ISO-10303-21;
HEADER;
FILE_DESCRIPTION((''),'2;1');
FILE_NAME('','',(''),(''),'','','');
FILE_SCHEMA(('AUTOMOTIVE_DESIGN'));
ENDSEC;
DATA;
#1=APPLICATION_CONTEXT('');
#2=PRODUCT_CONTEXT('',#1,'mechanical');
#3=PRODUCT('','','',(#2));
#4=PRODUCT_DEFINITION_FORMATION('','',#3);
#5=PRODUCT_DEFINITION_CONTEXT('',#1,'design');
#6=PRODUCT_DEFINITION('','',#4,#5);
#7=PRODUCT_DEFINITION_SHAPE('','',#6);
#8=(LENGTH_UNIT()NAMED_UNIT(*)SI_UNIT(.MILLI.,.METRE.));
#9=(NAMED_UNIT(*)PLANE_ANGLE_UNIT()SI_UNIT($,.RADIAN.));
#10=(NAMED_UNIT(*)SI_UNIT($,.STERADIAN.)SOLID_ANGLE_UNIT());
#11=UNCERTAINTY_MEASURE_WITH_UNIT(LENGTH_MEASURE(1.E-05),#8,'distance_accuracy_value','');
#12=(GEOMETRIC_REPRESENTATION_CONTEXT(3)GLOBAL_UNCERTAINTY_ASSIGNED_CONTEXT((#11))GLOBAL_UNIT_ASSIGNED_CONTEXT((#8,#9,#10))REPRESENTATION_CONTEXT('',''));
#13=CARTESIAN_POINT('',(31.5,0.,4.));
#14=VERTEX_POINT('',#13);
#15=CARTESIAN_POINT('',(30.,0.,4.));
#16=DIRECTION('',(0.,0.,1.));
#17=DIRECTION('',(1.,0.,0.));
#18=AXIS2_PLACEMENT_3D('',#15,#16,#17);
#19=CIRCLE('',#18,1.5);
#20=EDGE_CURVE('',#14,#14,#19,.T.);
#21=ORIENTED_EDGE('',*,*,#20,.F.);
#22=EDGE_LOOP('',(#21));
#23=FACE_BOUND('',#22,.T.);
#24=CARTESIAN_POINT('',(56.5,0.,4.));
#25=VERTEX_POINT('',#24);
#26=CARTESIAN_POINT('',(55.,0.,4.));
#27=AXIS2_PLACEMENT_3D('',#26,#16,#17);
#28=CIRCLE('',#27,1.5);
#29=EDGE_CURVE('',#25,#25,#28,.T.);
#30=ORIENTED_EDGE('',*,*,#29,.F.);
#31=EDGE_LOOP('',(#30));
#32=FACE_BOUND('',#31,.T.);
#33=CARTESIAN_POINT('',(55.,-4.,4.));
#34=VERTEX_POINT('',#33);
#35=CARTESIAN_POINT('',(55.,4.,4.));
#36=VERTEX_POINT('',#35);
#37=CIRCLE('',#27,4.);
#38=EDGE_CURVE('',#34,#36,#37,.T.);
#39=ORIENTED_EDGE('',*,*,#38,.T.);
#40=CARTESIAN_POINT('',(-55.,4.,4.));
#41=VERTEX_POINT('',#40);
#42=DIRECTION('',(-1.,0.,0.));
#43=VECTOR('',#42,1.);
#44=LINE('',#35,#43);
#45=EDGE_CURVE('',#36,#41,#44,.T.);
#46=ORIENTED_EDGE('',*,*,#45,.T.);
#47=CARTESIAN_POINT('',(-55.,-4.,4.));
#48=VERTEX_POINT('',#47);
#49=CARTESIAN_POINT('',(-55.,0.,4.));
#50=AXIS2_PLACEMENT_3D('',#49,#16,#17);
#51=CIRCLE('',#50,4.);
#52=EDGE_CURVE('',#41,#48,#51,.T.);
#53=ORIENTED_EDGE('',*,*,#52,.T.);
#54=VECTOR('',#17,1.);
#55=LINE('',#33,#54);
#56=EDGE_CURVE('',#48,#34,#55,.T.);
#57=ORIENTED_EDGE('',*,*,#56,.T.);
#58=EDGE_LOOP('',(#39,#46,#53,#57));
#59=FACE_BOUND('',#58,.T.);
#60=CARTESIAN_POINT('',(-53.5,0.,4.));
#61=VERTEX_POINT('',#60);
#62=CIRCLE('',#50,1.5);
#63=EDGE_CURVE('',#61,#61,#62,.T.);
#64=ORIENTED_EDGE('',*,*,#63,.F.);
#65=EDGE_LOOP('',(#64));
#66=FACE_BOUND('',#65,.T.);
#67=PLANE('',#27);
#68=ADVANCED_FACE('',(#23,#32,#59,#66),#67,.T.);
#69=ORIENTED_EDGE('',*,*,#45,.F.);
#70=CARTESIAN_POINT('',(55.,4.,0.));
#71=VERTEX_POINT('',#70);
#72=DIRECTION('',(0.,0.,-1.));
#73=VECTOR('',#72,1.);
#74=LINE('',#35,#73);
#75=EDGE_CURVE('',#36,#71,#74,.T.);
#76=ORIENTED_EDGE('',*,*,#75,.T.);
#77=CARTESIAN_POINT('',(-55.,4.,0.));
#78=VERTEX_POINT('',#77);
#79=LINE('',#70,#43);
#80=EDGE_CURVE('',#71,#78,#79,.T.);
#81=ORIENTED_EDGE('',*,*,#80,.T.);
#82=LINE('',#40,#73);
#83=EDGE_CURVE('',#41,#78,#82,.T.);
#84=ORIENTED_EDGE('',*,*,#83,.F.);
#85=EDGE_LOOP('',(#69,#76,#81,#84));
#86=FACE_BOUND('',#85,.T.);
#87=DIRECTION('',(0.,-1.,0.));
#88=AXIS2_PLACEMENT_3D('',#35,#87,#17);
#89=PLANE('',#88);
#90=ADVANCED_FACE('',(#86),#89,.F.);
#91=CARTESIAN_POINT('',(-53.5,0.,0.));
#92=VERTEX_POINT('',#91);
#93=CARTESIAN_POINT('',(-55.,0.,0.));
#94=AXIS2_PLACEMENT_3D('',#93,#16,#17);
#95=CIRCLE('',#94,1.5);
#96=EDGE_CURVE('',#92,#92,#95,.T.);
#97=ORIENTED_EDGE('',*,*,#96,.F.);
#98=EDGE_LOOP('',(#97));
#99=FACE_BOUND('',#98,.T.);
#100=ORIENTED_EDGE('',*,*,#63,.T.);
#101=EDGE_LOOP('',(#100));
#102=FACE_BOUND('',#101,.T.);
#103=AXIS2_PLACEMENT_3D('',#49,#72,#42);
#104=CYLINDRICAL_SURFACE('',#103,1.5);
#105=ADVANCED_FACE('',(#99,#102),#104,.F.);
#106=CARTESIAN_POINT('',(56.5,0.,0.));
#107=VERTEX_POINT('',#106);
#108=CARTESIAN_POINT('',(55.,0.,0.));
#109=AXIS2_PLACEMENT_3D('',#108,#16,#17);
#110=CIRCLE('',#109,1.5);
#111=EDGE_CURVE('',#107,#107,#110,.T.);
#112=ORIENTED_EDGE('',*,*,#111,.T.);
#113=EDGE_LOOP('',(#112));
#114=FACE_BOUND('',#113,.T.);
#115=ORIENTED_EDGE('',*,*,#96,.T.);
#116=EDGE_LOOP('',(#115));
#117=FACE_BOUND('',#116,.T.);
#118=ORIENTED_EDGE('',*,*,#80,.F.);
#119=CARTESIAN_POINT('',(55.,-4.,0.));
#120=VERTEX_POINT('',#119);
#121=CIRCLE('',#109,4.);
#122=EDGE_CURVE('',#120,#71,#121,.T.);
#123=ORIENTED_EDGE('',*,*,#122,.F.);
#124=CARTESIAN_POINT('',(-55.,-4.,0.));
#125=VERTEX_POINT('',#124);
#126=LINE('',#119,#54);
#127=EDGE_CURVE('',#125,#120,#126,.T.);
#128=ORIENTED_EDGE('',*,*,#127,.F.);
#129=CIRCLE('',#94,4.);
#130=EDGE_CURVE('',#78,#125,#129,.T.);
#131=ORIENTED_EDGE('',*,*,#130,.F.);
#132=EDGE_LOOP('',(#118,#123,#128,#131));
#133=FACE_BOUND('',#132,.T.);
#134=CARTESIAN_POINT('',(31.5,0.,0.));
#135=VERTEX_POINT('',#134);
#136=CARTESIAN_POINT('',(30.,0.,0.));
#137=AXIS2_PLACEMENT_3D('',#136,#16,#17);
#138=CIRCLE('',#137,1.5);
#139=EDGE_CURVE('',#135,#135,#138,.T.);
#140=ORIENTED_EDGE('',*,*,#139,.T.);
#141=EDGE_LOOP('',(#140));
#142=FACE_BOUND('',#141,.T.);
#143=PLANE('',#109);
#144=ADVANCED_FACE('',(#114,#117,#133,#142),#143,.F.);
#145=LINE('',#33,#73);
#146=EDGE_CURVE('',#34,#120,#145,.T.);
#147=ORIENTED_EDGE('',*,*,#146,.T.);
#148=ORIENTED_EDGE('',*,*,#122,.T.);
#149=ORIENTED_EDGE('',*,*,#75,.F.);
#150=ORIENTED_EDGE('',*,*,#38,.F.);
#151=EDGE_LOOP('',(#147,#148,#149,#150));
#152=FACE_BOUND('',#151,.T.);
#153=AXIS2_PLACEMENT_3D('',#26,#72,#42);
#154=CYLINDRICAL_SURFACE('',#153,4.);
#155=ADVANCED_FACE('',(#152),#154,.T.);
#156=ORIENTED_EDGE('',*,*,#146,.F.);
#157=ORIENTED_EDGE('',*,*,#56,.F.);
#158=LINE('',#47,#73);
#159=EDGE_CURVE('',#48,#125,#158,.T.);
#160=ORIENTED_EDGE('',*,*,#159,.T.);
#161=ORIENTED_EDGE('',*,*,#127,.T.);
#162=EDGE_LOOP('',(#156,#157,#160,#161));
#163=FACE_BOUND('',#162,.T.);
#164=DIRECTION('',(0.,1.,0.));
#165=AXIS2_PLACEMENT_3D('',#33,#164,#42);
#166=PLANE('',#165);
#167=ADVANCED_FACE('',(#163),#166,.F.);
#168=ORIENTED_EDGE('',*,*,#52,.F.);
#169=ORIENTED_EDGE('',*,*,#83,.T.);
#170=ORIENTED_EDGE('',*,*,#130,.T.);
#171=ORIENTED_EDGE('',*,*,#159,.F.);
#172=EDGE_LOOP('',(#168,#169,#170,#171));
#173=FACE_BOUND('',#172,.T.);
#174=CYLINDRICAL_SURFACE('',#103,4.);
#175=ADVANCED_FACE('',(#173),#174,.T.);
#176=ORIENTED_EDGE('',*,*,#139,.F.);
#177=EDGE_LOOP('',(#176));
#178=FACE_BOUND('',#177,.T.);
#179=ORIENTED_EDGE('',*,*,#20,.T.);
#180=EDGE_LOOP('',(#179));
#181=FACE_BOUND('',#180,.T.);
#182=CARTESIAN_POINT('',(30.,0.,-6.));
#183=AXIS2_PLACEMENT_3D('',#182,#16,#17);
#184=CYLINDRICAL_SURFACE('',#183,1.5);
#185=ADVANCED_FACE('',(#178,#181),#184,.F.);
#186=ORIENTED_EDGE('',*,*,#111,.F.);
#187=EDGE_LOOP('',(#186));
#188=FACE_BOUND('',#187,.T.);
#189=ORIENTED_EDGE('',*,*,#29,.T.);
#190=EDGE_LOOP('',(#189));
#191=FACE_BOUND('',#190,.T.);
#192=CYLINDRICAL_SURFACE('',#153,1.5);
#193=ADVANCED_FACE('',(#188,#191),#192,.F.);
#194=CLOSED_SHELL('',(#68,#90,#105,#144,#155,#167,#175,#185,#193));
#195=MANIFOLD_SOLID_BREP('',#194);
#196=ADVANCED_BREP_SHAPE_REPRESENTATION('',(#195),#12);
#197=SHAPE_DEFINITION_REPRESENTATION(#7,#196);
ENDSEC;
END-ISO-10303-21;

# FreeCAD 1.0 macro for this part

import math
import FreeCAD as App
import Part
import Sketcher
Q = App.Units.Quantity

doc = App.newDocument("Part")
body = doc.addObject("PartDesign::Body", "Body")

# Sketch on XY plane
sketch1 = body.newObject("Sketcher::SketchObject", "Sketch")
sketch1.AttachmentSupport = (doc.getObject("XY_Plane"), [""])
sketch1.MapMode = "FlatFace"
sketch1.addGeometry([
    Part.LineSegment(App.Vector(-55, -4, 0), App.Vector(55, -4, 0)),  # 0
    Part.ArcOfCircle(Part.Circle(App.Vector(55, 0, 0), App.Vector(0, 0, 1), 4), math.radians(-90), math.radians(90)),  # 1
    Part.LineSegment(App.Vector(55, 4, 0), App.Vector(-55, 4, 0)),  # 2
    Part.ArcOfCircle(Part.Circle(App.Vector(-55, 0, 0), App.Vector(0, 0, 1), 4), math.radians(90), math.radians(270)),  # 3
    Part.Circle(App.Vector(55, 0, 0), App.Vector(0, 0, 1), 1.5),  # 4
    Part.Circle(App.Vector(-55, 0, 0), App.Vector(0, 0, 1), 1.5),  # 5
], False)
sketch1.addConstraint([
    Sketcher.Constraint("Tangent", 0, 2, 1, 1),
    Sketcher.Constraint("Tangent", 1, 2, 2, 1),
    Sketcher.Constraint("Tangent", 2, 2, 3, 1),
    Sketcher.Constraint("Tangent", 3, 2, 0, 1),
    Sketcher.Constraint("Horizontal", 0),
    Sketcher.Constraint("Horizontal", 2),
    Sketcher.Constraint("Coincident", 4, 3, 1, 3),
    Sketcher.Constraint("Coincident", 5, 3, 3, 3),
    Sketcher.Constraint("Equal", 4, 5),
    Sketcher.Constraint("Symmetric", 1, 3, 3, 3, -1, 1),
    Sketcher.Constraint("Diameter", 4, Q("3 mm")),
    Sketcher.Constraint("Radius", 1, Q("4 mm")),
    Sketcher.Constraint("DistanceX", 0, 1, 0, 2, Q("110 mm")),
])
pad1 = body.newObject("PartDesign::Pad", "Pad")
pad1.Profile = sketch1
pad1.Length = 4

# Sketch on XY plane
sketch2 = body.newObject("Sketcher::SketchObject", "Sketch001")
sketch2.AttachmentSupport = (doc.getObject("XY_Plane"), [""])
sketch2.MapMode = "FlatFace"
sketch2.AttachmentOffset = App.Placement(App.Vector(0, 0, 4), App.Rotation())
sketch2.addGeometry(Part.Circle(App.Vector(30, 0, 0), App.Vector(0, 0, 1), 1.5), False)
sketch2.addConstraint([
    Sketcher.Constraint("PointOnObject", 0, 3, -1),
    Sketcher.Constraint("Diameter", 0, Q("3 mm")),
    Sketcher.Constraint("DistanceX", -1, 1, 0, 3, Q("30 mm")),
])
pocket1 = body.newObject("PartDesign::Pocket", "Pocket")
pocket1.Profile = sketch2
pocket1.Length = 10

doc.recompute()
